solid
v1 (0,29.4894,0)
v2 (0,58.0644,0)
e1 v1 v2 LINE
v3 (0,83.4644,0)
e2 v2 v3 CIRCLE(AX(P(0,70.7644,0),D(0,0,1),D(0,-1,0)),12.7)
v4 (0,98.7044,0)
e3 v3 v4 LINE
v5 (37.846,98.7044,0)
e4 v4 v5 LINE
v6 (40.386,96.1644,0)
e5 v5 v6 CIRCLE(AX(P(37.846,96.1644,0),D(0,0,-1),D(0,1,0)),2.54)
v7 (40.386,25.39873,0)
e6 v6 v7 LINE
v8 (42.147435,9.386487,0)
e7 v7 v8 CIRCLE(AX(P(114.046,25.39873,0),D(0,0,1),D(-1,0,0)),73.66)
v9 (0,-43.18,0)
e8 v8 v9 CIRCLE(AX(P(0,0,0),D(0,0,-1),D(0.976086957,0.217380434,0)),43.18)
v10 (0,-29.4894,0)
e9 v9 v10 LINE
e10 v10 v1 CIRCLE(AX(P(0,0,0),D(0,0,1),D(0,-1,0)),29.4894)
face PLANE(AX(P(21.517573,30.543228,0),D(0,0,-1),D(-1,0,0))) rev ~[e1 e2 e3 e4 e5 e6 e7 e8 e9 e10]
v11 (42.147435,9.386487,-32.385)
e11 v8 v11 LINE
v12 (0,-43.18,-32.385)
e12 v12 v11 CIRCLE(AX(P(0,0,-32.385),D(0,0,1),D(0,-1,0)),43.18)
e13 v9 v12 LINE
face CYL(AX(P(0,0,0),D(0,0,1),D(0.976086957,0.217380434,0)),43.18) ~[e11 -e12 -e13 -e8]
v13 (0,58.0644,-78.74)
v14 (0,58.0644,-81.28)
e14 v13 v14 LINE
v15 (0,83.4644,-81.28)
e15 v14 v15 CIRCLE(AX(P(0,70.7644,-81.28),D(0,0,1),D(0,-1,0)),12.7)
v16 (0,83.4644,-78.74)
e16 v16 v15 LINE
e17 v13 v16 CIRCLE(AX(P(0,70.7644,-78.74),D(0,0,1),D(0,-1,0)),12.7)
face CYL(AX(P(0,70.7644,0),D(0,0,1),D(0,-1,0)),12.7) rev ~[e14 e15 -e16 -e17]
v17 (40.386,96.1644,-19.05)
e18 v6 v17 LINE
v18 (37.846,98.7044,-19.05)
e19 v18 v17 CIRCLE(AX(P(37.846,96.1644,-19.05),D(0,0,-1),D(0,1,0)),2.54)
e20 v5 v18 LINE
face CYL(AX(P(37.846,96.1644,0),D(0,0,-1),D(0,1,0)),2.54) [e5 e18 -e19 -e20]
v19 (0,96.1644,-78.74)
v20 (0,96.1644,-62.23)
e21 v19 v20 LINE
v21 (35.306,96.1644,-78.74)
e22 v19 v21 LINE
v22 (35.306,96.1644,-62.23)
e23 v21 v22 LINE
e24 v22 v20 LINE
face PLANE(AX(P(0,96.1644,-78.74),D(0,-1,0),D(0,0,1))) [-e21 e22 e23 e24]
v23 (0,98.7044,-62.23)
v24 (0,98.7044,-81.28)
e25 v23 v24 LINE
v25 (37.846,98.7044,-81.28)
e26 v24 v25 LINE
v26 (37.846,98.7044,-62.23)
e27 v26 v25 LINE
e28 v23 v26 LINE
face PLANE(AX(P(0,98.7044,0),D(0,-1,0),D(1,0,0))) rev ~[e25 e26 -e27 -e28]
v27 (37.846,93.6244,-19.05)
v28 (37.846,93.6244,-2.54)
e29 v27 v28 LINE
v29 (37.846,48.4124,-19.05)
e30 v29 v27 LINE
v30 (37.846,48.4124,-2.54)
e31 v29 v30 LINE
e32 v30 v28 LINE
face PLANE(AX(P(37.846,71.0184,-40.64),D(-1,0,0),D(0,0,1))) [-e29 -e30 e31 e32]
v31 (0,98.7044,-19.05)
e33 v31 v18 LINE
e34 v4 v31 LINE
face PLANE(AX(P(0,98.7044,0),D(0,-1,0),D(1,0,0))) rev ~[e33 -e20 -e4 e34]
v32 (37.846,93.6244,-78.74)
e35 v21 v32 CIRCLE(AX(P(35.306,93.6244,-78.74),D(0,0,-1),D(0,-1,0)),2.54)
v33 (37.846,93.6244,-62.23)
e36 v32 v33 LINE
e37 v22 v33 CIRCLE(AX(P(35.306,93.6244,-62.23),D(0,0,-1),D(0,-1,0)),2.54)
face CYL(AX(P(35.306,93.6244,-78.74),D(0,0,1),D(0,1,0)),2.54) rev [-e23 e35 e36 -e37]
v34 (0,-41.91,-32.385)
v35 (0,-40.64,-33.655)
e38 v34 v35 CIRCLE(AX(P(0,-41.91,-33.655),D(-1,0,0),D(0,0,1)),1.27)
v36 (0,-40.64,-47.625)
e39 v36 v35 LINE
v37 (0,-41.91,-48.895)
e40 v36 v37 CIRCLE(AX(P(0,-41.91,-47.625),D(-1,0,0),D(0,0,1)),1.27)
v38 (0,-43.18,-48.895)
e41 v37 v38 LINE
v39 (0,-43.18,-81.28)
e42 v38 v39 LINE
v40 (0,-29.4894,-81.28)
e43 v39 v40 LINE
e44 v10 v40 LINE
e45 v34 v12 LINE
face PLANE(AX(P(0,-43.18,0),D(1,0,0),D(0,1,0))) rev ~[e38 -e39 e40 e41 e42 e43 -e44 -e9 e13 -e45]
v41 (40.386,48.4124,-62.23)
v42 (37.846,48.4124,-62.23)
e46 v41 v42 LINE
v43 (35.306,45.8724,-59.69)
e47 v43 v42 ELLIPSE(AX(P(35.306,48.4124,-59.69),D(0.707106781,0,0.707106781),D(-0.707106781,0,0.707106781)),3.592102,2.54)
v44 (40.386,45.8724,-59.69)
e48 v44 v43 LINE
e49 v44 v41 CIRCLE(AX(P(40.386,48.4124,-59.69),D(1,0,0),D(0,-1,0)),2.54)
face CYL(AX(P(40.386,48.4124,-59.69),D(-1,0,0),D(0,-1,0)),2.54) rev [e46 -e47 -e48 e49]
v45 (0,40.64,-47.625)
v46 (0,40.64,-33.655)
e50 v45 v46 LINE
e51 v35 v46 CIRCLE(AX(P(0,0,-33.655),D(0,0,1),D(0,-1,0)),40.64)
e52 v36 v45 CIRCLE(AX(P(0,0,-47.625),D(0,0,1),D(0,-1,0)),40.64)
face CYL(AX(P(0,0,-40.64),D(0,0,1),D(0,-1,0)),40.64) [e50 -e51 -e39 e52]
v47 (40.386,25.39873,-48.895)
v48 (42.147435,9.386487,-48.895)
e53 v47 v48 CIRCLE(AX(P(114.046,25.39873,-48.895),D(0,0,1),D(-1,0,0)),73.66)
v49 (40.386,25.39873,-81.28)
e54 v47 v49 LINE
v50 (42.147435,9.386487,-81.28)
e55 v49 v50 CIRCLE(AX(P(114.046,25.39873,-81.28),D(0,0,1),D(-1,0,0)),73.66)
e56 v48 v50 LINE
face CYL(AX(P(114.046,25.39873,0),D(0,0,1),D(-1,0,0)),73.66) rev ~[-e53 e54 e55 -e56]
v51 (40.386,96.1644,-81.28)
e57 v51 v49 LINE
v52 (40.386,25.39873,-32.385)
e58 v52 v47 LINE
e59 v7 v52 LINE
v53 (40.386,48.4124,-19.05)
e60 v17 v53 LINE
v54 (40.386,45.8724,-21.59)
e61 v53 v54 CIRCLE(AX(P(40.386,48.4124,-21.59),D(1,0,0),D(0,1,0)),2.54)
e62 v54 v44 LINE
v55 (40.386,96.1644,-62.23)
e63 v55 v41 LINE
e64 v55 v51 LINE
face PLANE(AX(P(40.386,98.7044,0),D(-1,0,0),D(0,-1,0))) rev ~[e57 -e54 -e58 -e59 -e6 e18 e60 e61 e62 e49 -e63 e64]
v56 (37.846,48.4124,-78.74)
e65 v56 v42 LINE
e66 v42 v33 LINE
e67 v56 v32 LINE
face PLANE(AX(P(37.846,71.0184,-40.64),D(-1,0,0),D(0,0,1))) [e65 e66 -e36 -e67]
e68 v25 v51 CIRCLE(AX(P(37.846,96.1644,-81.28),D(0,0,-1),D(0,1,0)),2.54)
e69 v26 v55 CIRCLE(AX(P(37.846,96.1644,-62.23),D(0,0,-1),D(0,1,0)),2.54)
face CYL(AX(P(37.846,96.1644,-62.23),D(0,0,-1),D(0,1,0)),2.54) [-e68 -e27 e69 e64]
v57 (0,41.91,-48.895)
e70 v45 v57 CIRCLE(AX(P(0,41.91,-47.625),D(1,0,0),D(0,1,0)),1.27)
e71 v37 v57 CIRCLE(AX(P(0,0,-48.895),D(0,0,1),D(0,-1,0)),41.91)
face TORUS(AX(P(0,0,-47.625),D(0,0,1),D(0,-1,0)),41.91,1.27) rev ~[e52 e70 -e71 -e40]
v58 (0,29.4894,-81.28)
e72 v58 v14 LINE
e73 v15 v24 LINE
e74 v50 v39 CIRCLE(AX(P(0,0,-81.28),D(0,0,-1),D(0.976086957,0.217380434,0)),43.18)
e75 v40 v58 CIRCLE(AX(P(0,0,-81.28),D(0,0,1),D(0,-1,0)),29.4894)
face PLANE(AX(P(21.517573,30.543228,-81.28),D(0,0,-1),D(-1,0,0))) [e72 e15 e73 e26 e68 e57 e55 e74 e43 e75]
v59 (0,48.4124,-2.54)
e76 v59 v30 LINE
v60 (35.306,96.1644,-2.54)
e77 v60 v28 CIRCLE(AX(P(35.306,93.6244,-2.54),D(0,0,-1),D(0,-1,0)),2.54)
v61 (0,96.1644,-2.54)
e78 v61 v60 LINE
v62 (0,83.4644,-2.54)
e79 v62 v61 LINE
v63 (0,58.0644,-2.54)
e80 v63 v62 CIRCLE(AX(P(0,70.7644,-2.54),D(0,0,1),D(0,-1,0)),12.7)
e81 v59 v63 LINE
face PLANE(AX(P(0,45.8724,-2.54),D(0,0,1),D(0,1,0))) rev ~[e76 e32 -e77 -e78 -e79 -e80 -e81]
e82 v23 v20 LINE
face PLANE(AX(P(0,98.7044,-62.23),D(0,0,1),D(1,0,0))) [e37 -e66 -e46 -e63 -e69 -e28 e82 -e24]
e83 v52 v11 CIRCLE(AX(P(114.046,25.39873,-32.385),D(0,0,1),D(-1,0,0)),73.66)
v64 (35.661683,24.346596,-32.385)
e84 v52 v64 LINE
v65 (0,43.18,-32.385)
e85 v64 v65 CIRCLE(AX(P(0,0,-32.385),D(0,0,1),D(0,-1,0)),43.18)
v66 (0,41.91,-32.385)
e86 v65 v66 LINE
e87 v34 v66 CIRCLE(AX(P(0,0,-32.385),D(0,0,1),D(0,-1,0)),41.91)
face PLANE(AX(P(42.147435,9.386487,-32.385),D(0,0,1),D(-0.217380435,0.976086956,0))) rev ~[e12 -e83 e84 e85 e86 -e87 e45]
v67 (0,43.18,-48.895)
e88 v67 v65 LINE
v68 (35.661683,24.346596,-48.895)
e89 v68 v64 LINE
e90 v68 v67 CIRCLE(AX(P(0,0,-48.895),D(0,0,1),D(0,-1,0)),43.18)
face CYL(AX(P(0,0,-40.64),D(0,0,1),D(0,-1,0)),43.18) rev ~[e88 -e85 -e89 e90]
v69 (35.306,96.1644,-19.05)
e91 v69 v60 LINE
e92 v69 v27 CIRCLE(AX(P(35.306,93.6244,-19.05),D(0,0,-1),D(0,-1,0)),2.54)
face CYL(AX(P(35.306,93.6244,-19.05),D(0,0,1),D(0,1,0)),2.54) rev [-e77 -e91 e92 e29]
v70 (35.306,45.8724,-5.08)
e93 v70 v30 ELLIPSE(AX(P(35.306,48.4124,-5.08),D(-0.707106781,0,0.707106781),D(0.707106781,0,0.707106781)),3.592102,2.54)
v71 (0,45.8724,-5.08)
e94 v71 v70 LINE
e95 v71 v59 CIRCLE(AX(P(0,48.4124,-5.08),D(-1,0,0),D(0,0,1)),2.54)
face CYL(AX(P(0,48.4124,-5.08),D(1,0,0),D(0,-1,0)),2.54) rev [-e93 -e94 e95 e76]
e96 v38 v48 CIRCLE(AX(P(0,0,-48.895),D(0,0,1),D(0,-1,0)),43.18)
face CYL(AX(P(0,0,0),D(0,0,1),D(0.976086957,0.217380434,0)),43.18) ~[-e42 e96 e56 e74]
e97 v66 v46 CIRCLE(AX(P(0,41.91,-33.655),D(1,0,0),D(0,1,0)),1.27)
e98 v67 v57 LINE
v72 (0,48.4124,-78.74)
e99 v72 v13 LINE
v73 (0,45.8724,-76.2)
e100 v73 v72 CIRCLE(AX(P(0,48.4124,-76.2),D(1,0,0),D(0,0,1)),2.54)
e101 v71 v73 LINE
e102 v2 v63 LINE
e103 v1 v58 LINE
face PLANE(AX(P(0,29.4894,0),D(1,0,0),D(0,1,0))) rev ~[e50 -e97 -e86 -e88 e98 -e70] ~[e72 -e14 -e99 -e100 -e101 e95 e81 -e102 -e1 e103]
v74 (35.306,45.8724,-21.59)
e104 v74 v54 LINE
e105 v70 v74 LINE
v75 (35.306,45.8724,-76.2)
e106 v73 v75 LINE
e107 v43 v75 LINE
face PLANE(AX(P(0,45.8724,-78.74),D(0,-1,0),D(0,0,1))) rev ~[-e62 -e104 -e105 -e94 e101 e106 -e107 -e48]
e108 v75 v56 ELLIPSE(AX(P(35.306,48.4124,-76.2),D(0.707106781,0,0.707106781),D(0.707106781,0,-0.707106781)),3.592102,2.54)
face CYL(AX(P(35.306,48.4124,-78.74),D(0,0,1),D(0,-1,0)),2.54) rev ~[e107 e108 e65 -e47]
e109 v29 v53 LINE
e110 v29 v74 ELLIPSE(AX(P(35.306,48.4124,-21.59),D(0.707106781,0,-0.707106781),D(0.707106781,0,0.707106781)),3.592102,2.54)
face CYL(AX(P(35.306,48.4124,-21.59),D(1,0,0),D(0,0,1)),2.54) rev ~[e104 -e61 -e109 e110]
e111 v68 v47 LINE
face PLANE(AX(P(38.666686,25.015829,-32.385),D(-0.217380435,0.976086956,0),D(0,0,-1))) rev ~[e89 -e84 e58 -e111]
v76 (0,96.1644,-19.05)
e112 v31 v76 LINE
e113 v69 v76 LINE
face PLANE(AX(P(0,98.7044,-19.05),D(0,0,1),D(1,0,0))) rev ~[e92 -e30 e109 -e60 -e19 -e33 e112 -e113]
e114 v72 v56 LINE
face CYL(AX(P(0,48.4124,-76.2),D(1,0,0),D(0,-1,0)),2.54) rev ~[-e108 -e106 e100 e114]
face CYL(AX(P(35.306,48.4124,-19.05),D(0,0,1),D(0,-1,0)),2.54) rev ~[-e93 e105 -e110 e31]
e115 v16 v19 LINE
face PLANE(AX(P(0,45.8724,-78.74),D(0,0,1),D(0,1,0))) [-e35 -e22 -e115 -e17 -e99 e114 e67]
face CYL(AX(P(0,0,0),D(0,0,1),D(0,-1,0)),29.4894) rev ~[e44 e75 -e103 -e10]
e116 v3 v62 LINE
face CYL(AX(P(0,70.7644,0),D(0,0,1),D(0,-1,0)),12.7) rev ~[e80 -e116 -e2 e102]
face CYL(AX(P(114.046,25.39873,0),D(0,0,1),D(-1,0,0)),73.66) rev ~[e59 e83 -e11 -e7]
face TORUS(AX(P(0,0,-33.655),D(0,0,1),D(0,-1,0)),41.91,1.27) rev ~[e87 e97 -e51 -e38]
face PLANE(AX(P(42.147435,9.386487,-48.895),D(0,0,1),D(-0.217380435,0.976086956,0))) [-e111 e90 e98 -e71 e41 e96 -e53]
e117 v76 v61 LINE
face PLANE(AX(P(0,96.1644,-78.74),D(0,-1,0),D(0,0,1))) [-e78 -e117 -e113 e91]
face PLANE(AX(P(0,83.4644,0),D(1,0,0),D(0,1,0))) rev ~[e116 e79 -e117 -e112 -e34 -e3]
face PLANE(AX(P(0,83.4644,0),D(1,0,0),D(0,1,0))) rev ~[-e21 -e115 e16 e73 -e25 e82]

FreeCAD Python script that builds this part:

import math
import FreeCAD as App
import Part
import Sketcher
Q = App.Units.Quantity


def edges_at(feature, points):
    """Names of the edges that pass closest to the given points."""
    edges = feature.Shape.Edges
    near = lambda p: min(range(len(edges)), key=lambda i: edges[i].distToShape(Part.Vertex(*p))[0])
    return sorted({f"Edge{near(p) + 1}" for p in points})


def add_polygon(sketch, points):
    """Adds a closed chain of lines whose ends are joined by coincident constraints."""
    first, n = sketch.GeometryCount, len(points)
    for a, b in zip(points, points[1:] + points[:1]):
        sketch.addGeometry(Part.LineSegment(App.Vector(*a, 0), App.Vector(*b, 0)), False)
    for i in range(n):
        sketch.addConstraint(Sketcher.Constraint("Coincident", first + i, 2, first + (i + 1) % n, 1))

doc = App.newDocument("Part")
params = doc.addObject("Spreadsheet::Sheet", "Params")
for row, (alias, value) in enumerate([
    ("sketch1_radius", "0.5 in"),
    ("sketch1_radius2", "1.7 in"),
    ("sketch1_radius3", "2.9 in"),
    ("sketch1_height", "0.6 in"),
    ("sketch1_radius4", "1.161 in"),
    ("pad1_length", "3.2 in"),
    ("sketch2_height", "3 in"),
    ("sketch2_width", "1.98 in"),
    ("pocket1_length", "1.49 in"),
    ("sketch3_height", "1.7 in"),
    ("sketch3_width", "1.59 in"),
    ("pocket2_length", "2.08 in"),
    ("fillet_radius", "0.1 in"),
    ("fillet2_radius", "0.1 in"),
    ("fillet3_radius", "0.1 in"),
    ("fillet4_radius", "0.1 in"),
    ("sketch4_width", "0.1 in"),
    ("sketch4_height", "0.65 in"),
    ("groove_angle", "360 deg"),
    ("sketch5_width", "0.65 in"),
    ("sketch6_width", "0.65 in"),
    ("pocket4_length", "0.1 in"),
    ("fillet5_radius", "0.05 in"),
], start=1):
    params.set(f"A{row}", alias)
    params.set(f"B{row}", "=" + value)
    params.setAlias(f"B{row}", alias)

body = doc.addObject("PartDesign::Body", "Body")

# Sketch on XY plane
sketch1 = body.newObject("Sketcher::SketchObject", "Sketch")
sketch1.AttachmentSupport = (doc.getObject("XY_Plane"), [""])
sketch1.MapMode = "FlatFace"
sketch1.addGeometry(Part.ArcOfCircle(Part.Circle(App.Vector(0, 71, 0), App.Vector(0, 0, 1), 13), math.radians(-90), math.radians(90)), False)
sketch1.addGeometry(Part.LineSegment(App.Vector(0, 58, 0), App.Vector(0, 29, 0)), False)
sketch1.addGeometry(Part.ArcOfCircle(Part.Circle(App.Vector(0, 0, 0), App.Vector(0, 0, 1), 29), math.radians(-90), math.radians(90)), False)
sketch1.addGeometry(Part.LineSegment(App.Vector(0, -29, 0), App.Vector(0, -43, 0)), False)
sketch1.addGeometry(Part.ArcOfCircle(Part.Circle(App.Vector(0, 0, 0), App.Vector(0, 0, 1), 43), math.radians(-90), math.radians(13)), False)
sketch1.addGeometry(Part.ArcOfCircle(Part.Circle(App.Vector(114, 25, 0), App.Vector(0, 0, 1), 74), math.radians(-180), math.radians(-167.44)), False)
sketch1.addGeometry(Part.LineSegment(App.Vector(40, 25, 0), App.Vector(40, 99, 0)), False)
sketch1.addGeometry(Part.LineSegment(App.Vector(40, 99, 0), App.Vector(0, 99, 0)), False)
sketch1.addGeometry(Part.LineSegment(App.Vector(0, 99, 0), App.Vector(0, 83, 0)), False)
sketch1.addConstraint(Sketcher.Constraint("Coincident", 0, 1, 1, 1))
sketch1.addConstraint(Sketcher.Constraint("Coincident", 1, 2, 2, 2))
sketch1.addConstraint(Sketcher.Constraint("Coincident", 2, 1, 3, 1))
sketch1.addConstraint(Sketcher.Constraint("Coincident", 3, 2, 4, 1))
sketch1.addConstraint(Sketcher.Constraint("Tangent", 4, 2, 5, 2))
sketch1.addConstraint(Sketcher.Constraint("Tangent", 5, 1, 6, 1))
sketch1.addConstraint(Sketcher.Constraint("Coincident", 6, 2, 7, 1))
sketch1.addConstraint(Sketcher.Constraint("Coincident", 7, 2, 8, 1))
sketch1.addConstraint(Sketcher.Constraint("Coincident", 8, 2, 0, 2))
sketch1.addConstraint(Sketcher.Constraint("Vertical", 1))
sketch1.addConstraint(Sketcher.Constraint("Vertical", 3))
sketch1.addConstraint(Sketcher.Constraint("Vertical", 6))
sketch1.addConstraint(Sketcher.Constraint("Horizontal", 7))
sketch1.addConstraint(Sketcher.Constraint("Vertical", 8))
sketch1.addConstraint(Sketcher.Constraint("Coincident", 2, 3, -1, 1))
sketch1.addConstraint(Sketcher.Constraint("Coincident", 4, 3, -1, 1))
sketch1.addConstraint(Sketcher.Constraint("PointOnObject", 0, 3, -2))
sketch1.addConstraint(Sketcher.Constraint("PointOnObject", 0, 1, -2))
sketch1.addConstraint(Sketcher.Constraint("PointOnObject", 2, 1, -2))
sketch1.addConstraint(Sketcher.Constraint("PointOnObject", 7, 2, -2))
sketch1.addConstraint(Sketcher.Constraint("Radius", 0, Q("0.5 in")))
sketch1.addConstraint(Sketcher.Constraint("Radius", 4, Q("1.7 in")))
sketch1.addConstraint(Sketcher.Constraint("Radius", 5, Q("2.9 in")))
sketch1.addConstraint(Sketcher.Constraint("DistanceY", 8, 2, 8, 1, Q("0.6 in")))
sketch1.addConstraint(Sketcher.Constraint("Radius", 2, Q("1.161 in")))
sketch1.addConstraint(Sketcher.Constraint("DistanceX", 7, 2, 7, 1, Q("1.59 in")))
sketch1.addConstraint(Sketcher.Constraint("DistanceY", 1, 2, 1, 1, Q("1.125 in")))
sketch1.setExpression("Constraints[20]", "Params.sketch1_radius")
sketch1.setExpression("Constraints[21]", "Params.sketch1_radius2")
sketch1.setExpression("Constraints[22]", "Params.sketch1_radius3")
sketch1.setExpression("Constraints[23]", "Params.sketch1_height")
sketch1.setExpression("Constraints[24]", "Params.sketch1_radius4")
pad1 = body.newObject("PartDesign::Pad", "Pad")
pad1.Profile = sketch1
pad1.setExpression("Length", "Params.pad1_length")
pad1.Reversed = True

# Sketch on YZ plane
sketch2 = body.newObject("Sketcher::SketchObject", "Sketch001")
sketch2.AttachmentSupport = (doc.getObject("YZ_Plane"), [""])
sketch2.MapMode = "FlatFace"
add_polygon(sketch2, [(96, -79), (46, -79), (46, -3), (96, -3)])  # lines 0-3
sketch2.addConstraint(Sketcher.Constraint("Horizontal", 0))
sketch2.addConstraint(Sketcher.Constraint("Vertical", 1))
sketch2.addConstraint(Sketcher.Constraint("Horizontal", 2))
sketch2.addConstraint(Sketcher.Constraint("Vertical", 3))
sketch2.addConstraint(Sketcher.Constraint("DistanceY", 1, 1, 1, 2, Q("3 in")))
sketch2.addConstraint(Sketcher.Constraint("DistanceX", 0, 2, 0, 1, Q("1.98 in")))
sketch2.addConstraint(Sketcher.Constraint("DistanceY", 0, 2, -1, 1, Q("3.1 in")))
sketch2.addConstraint(Sketcher.Constraint("DistanceX", -1, 1, 0, 2, Q("1.806 in")))
sketch2.setExpression("Constraints[8]", "Params.sketch2_height")
sketch2.setExpression("Constraints[9]", "Params.sketch2_width")
pocket1 = body.newObject("PartDesign::Pocket", "Pocket")
pocket1.Profile = sketch2
pocket1.setExpression("Length", "Params.pocket1_length")
pocket1.Reversed = True

# Sketch on XZ plane
sketch3 = body.newObject("Sketcher::SketchObject", "Sketch002")
sketch3.AttachmentSupport = (doc.getObject("XZ_Plane"), [""])
sketch3.MapMode = "FlatFace"
sketch3.AttachmentOffset = App.Placement(App.Vector(0, 0, -3.886 * 25.4), App.Rotation())
add_polygon(sketch3, [(0, -62), (0, -19), (40, -19), (40, -62)])  # lines 0-3
sketch3.addConstraint(Sketcher.Constraint("Vertical", 0))
sketch3.addConstraint(Sketcher.Constraint("Horizontal", 1))
sketch3.addConstraint(Sketcher.Constraint("Vertical", 2))
sketch3.addConstraint(Sketcher.Constraint("Horizontal", 3))
sketch3.addConstraint(Sketcher.Constraint("PointOnObject", 0, 2, -2))
sketch3.addConstraint(Sketcher.Constraint("DistanceY", 0, 1, 0, 2, Q("1.7 in")))
sketch3.addConstraint(Sketcher.Constraint("DistanceX", 1, 1, 1, 2, Q("1.59 in")))
sketch3.addConstraint(Sketcher.Constraint("DistanceY", 0, 2, -1, 1, Q("0.75 in")))
sketch3.setExpression("Constraints[9]", "Params.sketch3_height")
sketch3.setExpression("Constraints[10]", "Params.sketch3_width")
pocket2 = body.newObject("PartDesign::Pocket", "Pocket001")
pocket2.Profile = sketch3
pocket2.setExpression("Length", "Params.pocket2_length")
pocket2.Reversed = True
doc.recompute()

fillet = body.newObject("PartDesign::Fillet", "Fillet")
fillet.Base = (pocket2, edges_at(pocket2, [
    (18.923, 45.872, -78.74),
    (18.923, 45.872, -2.54),
    (37.846, 45.872, -10.795),
    (37.846, 45.872, -70.485),
]))
fillet.setExpression("Radius", "Params.fillet_radius")
doc.recompute()

fillet2 = body.newObject("PartDesign::Fillet", "Fillet001")
fillet2.Base = (fillet, edges_at(fillet, [(37.846, 96.164, -70.485), (37.846, 96.164, -10.795)]))
fillet2.setExpression("Radius", "Params.fillet2_radius")
doc.recompute()

fillet3 = body.newObject("PartDesign::Fillet", "Fillet002")
fillet3.Base = (fillet2, edges_at(fillet2, [(37.846, 45.872, -19.05), (37.846, 45.872, -62.23)]))
fillet3.setExpression("Radius", "Params.fillet3_radius")
doc.recompute()

fillet4 = body.newObject("PartDesign::Fillet", "Fillet003")
fillet4.Base = (fillet3, edges_at(fillet3, [(40.386, 98.704, -71.755), (40.386, 98.704, -9.525)]))
fillet4.setExpression("Radius", "Params.fillet4_radius")

# Sketch on YZ plane
sketch4 = body.newObject("Sketcher::SketchObject", "Sketch003")
sketch4.AttachmentSupport = (doc.getObject("YZ_Plane"), [""])
sketch4.MapMode = "FlatFace"
add_polygon(sketch4, [(-40.6, -48.9), (-43.2, -48.9), (-43.2, -32.4), (-40.6, -32.4)])  # lines 0-3
sketch4.addConstraint(Sketcher.Constraint("Horizontal", 0))
sketch4.addConstraint(Sketcher.Constraint("Vertical", 1))
sketch4.addConstraint(Sketcher.Constraint("Horizontal", 2))
sketch4.addConstraint(Sketcher.Constraint("Vertical", 3))
sketch4.addConstraint(Sketcher.Constraint("DistanceX", 0, 2, 0, 1, Q("0.1 in")))
sketch4.addConstraint(Sketcher.Constraint("DistanceY", 1, 1, 1, 2, Q("0.65 in")))
sketch4.addConstraint(Sketcher.Constraint("DistanceX", 0, 2, -1, 1, Q("1.7 in")))
sketch4.addConstraint(Sketcher.Constraint("DistanceY", 0, 2, -1, 1, Q("1.925 in")))
sketch4.setExpression("Constraints[8]", "Params.sketch4_width")
sketch4.setExpression("Constraints[9]", "Params.sketch4_height")
groove = body.newObject("PartDesign::Groove", "Groove")
groove.Profile = sketch4
groove.ReferenceAxis = (sketch4, ["V_Axis"])
groove.setExpression("Angle", "Params.groove_angle")

# Sketch on an angled plane
sketch5 = body.newObject("Sketcher::SketchObject", "Sketch004")
sketch5.Placement = App.Placement(App.Vector(42.147435, 9.386487, 0), App.Rotation(App.Vector(0, 0, -1), App.Vector(-0.217380435, 0.976086956, 0), App.Vector(0.976086956, 0.217380435, 0), "ZXY"))
add_polygon(sketch5, [(32, 16), (32, 0), (49, 0), (49, 16)])  # lines 0-3
sketch5.addConstraint(Sketcher.Constraint("Vertical", 0))
sketch5.addConstraint(Sketcher.Constraint("Horizontal", 1))
sketch5.addConstraint(Sketcher.Constraint("Vertical", 2))
sketch5.addConstraint(Sketcher.Constraint("Horizontal", 3))
sketch5.addConstraint(Sketcher.Constraint("PointOnObject", 0, 2, -1))
sketch5.addConstraint(Sketcher.Constraint("DistanceX", 1, 1, 1, 2, Q("0.65 in")))
sketch5.addConstraint(Sketcher.Constraint("DistanceX", -1, 1, 0, 2, Q("1.275 in")))
sketch5.addConstraint(Sketcher.Constraint("DistanceY", 0, 2, 0, 1, 16.012243))
sketch5.setExpression("Constraints[9]", "Params.sketch5_width")
pocket3 = body.newObject("PartDesign::Pocket", "Pocket002")
pocket3.Profile = sketch5
pocket3.Type = "UpToFirst"

# Sketch on an angled plane
sketch6 = body.newObject("Sketcher::SketchObject", "Sketch005")
sketch6.Placement = App.Placement(App.Vector(42.147435, 9.386487, 0), App.Rotation(App.Vector(0, 0, -1), App.Vector(-0.217380435, 0.976086956, 0), App.Vector(0.976086956, 0.217380435, 0), "ZXY"))
add_polygon(sketch6, [(32, 16), (32, 0), (49, 0), (49, 16)])  # lines 0-3
sketch6.addConstraint(Sketcher.Constraint("Vertical", 0))
sketch6.addConstraint(Sketcher.Constraint("Horizontal", 1))
sketch6.addConstraint(Sketcher.Constraint("Vertical", 2))
sketch6.addConstraint(Sketcher.Constraint("Horizontal", 3))
sketch6.addConstraint(Sketcher.Constraint("PointOnObject", 0, 2, -1))
sketch6.addConstraint(Sketcher.Constraint("DistanceX", 1, 1, 1, 2, Q("0.65 in")))
sketch6.addConstraint(Sketcher.Constraint("DistanceX", -1, 1, 0, 2, Q("1.275 in")))
sketch6.addConstraint(Sketcher.Constraint("DistanceY", 0, 2, 0, 1, 16.012243))
sketch6.setExpression("Constraints[9]", "Params.sketch6_width")
pocket4 = body.newObject("PartDesign::Pocket", "Pocket003")
pocket4.Profile = sketch6
pocket4.setExpression("Length", "Params.pocket4_length")
pocket4.Reversed = True
doc.recompute()

fillet5 = body.newObject("PartDesign::Fillet", "Fillet004")
fillet5.Base = (pocket4, edges_at(pocket4, [(40.64, 0, -48.895), (40.64, 0, -32.385)]))
fillet5.setExpression("Radius", "Params.fillet5_radius")

doc.recompute()
